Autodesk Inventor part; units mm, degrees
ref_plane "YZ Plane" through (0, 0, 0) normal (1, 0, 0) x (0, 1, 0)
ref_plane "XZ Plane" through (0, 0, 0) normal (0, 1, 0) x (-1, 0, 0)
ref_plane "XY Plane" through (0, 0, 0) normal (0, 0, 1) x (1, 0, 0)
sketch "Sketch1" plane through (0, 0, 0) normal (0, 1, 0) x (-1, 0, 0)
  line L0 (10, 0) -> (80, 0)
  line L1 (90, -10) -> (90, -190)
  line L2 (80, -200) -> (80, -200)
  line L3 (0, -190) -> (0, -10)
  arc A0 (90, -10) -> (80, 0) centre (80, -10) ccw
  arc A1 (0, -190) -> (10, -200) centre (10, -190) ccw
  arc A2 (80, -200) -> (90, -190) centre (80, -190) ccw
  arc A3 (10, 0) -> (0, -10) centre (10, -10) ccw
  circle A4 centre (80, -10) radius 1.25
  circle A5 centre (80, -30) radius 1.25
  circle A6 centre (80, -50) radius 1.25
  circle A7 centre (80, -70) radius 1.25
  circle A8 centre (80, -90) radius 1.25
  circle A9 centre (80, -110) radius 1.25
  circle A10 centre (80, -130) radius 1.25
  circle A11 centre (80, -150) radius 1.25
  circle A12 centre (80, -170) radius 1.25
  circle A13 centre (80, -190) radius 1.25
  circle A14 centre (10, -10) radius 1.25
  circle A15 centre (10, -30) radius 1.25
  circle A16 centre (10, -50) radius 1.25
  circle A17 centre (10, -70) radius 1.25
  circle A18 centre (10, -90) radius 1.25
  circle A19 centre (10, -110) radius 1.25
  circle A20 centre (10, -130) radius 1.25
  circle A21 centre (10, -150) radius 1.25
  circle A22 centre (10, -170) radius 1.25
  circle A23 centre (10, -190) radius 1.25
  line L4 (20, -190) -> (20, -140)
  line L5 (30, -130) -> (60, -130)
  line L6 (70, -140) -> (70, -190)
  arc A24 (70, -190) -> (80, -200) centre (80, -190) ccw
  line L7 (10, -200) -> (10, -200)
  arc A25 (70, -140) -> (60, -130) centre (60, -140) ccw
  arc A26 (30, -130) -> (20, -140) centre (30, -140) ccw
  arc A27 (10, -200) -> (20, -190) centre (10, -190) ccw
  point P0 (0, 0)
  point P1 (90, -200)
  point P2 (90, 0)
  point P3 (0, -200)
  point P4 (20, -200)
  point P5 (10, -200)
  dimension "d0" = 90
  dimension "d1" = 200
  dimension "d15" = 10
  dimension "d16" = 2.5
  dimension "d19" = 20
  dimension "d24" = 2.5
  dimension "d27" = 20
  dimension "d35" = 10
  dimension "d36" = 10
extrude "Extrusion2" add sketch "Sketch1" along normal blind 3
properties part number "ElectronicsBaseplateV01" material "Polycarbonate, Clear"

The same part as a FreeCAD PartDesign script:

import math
import FreeCAD as App
import Part
import Sketcher
from FreeCAD import Vector
Q = App.Units.Quantity

doc = App.newDocument("Part")
body = doc.addObject("PartDesign::Body", "Body")

# Sketch on XZ plane
sketch1 = doc.addObject("Sketcher::SketchObject", "Sketch")
body.addObject(sketch1)
sketch1.AttachmentSupport = (doc.XZ_Plane, [""])
sketch1.MapMode = "FlatFace"
sketch1.addGeometry([
    Part.LineSegment(Vector(-80, 0, 0), Vector(-10, 0, 0)),  # 0
    Part.ArcOfCircle(Part.Circle(Vector(-10, -10, 0), Vector(0, 0, 1), 10), math.radians(0), math.radians(90)),  # 1
    Part.LineSegment(Vector(0, -10, 0), Vector(0, -190, 0)),  # 2
    Part.ArcOfCircle(Part.Circle(Vector(-10, -190, 0), Vector(0, 0, 1), 10), math.radians(180), math.radians(360)),  # 3
    Part.LineSegment(Vector(-20, -190, 0), Vector(-20, -140, 0)),  # 4
    Part.ArcOfCircle(Part.Circle(Vector(-30, -140, 0), Vector(0, 0, 1), 10), math.radians(0), math.radians(90)),  # 5
    Part.LineSegment(Vector(-30, -130, 0), Vector(-60, -130, 0)),  # 6
    Part.ArcOfCircle(Part.Circle(Vector(-60, -140, 0), Vector(0, 0, 1), 10), math.radians(90), math.radians(180)),  # 7
    Part.LineSegment(Vector(-70, -140, 0), Vector(-70, -190, 0)),  # 8
    Part.ArcOfCircle(Part.Circle(Vector(-80, -190, 0), Vector(0, 0, 1), 10), math.radians(180), math.radians(360)),  # 9
    Part.LineSegment(Vector(-90, -190, 0), Vector(-90, -10, 0)),  # 10
    Part.ArcOfCircle(Part.Circle(Vector(-80, -10, 0), Vector(0, 0, 1), 10), math.radians(90), math.radians(180)),  # 11
    Part.Circle(Vector(-10, -190, 0), Vector(0, 0, 1), 1.2),  # 12
    Part.Circle(Vector(-10, -170, 0), Vector(0, 0, 1), 1.2),  # 13
    Part.Circle(Vector(-10, -150, 0), Vector(0, 0, 1), 1.2),  # 14
    Part.Circle(Vector(-10, -130, 0), Vector(0, 0, 1), 1.2),  # 15
    Part.Circle(Vector(-10, -110, 0), Vector(0, 0, 1), 1.2),  # 16
    Part.Circle(Vector(-80, -190, 0), Vector(0, 0, 1), 1.2),  # 17
    Part.Circle(Vector(-80, -170, 0), Vector(0, 0, 1), 1.2),  # 18
    Part.Circle(Vector(-80, -150, 0), Vector(0, 0, 1), 1.2),  # 19
    Part.Circle(Vector(-80, -130, 0), Vector(0, 0, 1), 1.2),  # 20
    Part.Circle(Vector(-80, -110, 0), Vector(0, 0, 1), 1.2),  # 21
    Part.Circle(Vector(-10, -90, 0), Vector(0, 0, 1), 1.2),  # 22
    Part.Circle(Vector(-10, -70, 0), Vector(0, 0, 1), 1.2),  # 23
    Part.Circle(Vector(-10, -50, 0), Vector(0, 0, 1), 1.2),  # 24
    Part.Circle(Vector(-10, -30, 0), Vector(0, 0, 1), 1.2),  # 25
    Part.Circle(Vector(-10, -10, 0), Vector(0, 0, 1), 1.2),  # 26
    Part.Circle(Vector(-80, -90, 0), Vector(0, 0, 1), 1.2),  # 27
    Part.Circle(Vector(-80, -70, 0), Vector(0, 0, 1), 1.2),  # 28
    Part.Circle(Vector(-80, -50, 0), Vector(0, 0, 1), 1.2),  # 29
    Part.Circle(Vector(-80, -30, 0), Vector(0, 0, 1), 1.2),  # 30
    Part.Circle(Vector(-80, -10, 0), Vector(0, 0, 1), 1.2),  # 31
], False)
sketch1.addConstraint([
    Sketcher.Constraint("Tangent", 0, 2, 1, 2),
    Sketcher.Constraint("Tangent", 1, 1, 2, 1),
    Sketcher.Constraint("Tangent", 2, 2, 3, 2),
    Sketcher.Constraint("Tangent", 3, 1, 4, 1),
    Sketcher.Constraint("Tangent", 4, 2, 5, 1),
    Sketcher.Constraint("Tangent", 5, 2, 6, 1),
    Sketcher.Constraint("Tangent", 6, 2, 7, 1),
    Sketcher.Constraint("Tangent", 7, 2, 8, 1),
    Sketcher.Constraint("Tangent", 8, 2, 9, 2),
    Sketcher.Constraint("Tangent", 9, 1, 10, 1),
    Sketcher.Constraint("Tangent", 10, 2, 11, 2),
    Sketcher.Constraint("Tangent", 11, 1, 0, 1),
    Sketcher.Constraint("Horizontal", 0),
    Sketcher.Constraint("Vertical", 2),
    Sketcher.Constraint("Vertical", 4),
    Sketcher.Constraint("Horizontal", 6),
    Sketcher.Constraint("Vertical", 8),
    Sketcher.Constraint("Vertical", 10),
    Sketcher.Constraint("Coincident", 12, 3, 3, 3),
    Sketcher.Constraint("Coincident", 17, 3, 9, 3),
    Sketcher.Constraint("Coincident", 26, 3, 1, 3),
    Sketcher.Constraint("Coincident", 31, 3, 11, 3),
    Sketcher.Constraint("Equal", 1, 3),
    Sketcher.Constraint("Equal", 3, 5),
    Sketcher.Constraint("Equal", 5, 7),
    Sketcher.Constraint("Equal", 7, 9),
    Sketcher.Constraint("Equal", 9, 11),
    Sketcher.Constraint("Equal", 12, 13),
    Sketcher.Constraint("Equal", 13, 14),
    Sketcher.Constraint("Equal", 14, 15),
    Sketcher.Constraint("Equal", 15, 16),
    Sketcher.Constraint("Equal", 16, 17),
    Sketcher.Constraint("Equal", 17, 18),
    Sketcher.Constraint("Equal", 18, 19),
    Sketcher.Constraint("Equal", 19, 20),
    Sketcher.Constraint("Equal", 20, 21),
    Sketcher.Constraint("Equal", 21, 22),
    Sketcher.Constraint("Equal", 22, 23),
    Sketcher.Constraint("Equal", 23, 24),
    Sketcher.Constraint("Equal", 24, 25),
    Sketcher.Constraint("Equal", 25, 26),
    Sketcher.Constraint("Equal", 26, 27),
    Sketcher.Constraint("Equal", 27, 28),
    Sketcher.Constraint("Equal", 28, 29),
    Sketcher.Constraint("Equal", 29, 30),
    Sketcher.Constraint("Equal", 30, 31),
    Sketcher.Constraint("PointOnObject", 0, 2, -1),
    Sketcher.Constraint("PointOnObject", 1, 1, -2),
    Sketcher.Constraint("Horizontal", 3, 3, 9, 3),
    Sketcher.Constraint("Horizontal", 13, 3, 18, 3),
    Sketcher.Constraint("Horizontal", 14, 3, 19, 3),
    Sketcher.Constraint("Horizontal", 15, 3, 20, 3),
    Sketcher.Constraint("Horizontal", 16, 3, 21, 3),
    Sketcher.Constraint("Horizontal", 22, 3, 27, 3),
    Sketcher.Constraint("Horizontal", 23, 3, 28, 3),
    Sketcher.Constraint("Horizontal", 24, 3, 29, 3),
    Sketcher.Constraint("Horizontal", 25, 3, 30, 3),
    Sketcher.Constraint("Horizontal", 20, 3, 5, 2),
    Sketcher.Constraint("Vertical", 12, 3, 13, 3),
    Sketcher.Constraint("Vertical", 13, 3, 14, 3),
    Sketcher.Constraint("Vertical", 14, 3, 15, 3),
    Sketcher.Constraint("Vertical", 15, 3, 16, 3),
    Sketcher.Constraint("Vertical", 17, 3, 18, 3),
    Sketcher.Constraint("Vertical", 18, 3, 19, 3),
    Sketcher.Constraint("Vertical", 19, 3, 20, 3),
    Sketcher.Constraint("Vertical", 20, 3, 21, 3),
    Sketcher.Constraint("Vertical", 16, 3, 22, 3),
    Sketcher.Constraint("Vertical", 22, 3, 23, 3),
    Sketcher.Constraint("Vertical", 23, 3, 24, 3),
    Sketcher.Constraint("Vertical", 24, 3, 25, 3),
    Sketcher.Constraint("Vertical", 21, 3, 27, 3),
    Sketcher.Constraint("Vertical", 27, 3, 28, 3),
    Sketcher.Constraint("Vertical", 28, 3, 29, 3),
    Sketcher.Constraint("Vertical", 29, 3, 30, 3),
    Sketcher.Constraint("Radius", 1, Q("10 mm")),
    Sketcher.Constraint("Diameter", 12, Q("2.5 mm")),
    Sketcher.Constraint("DistanceY", 22, 3, -1, 1, Q("90 mm")),
    Sketcher.Constraint("DistanceX", 9, 1, -1, 1, Q("90 mm")),
    Sketcher.Constraint("DistanceY", 3, 3, 13, 3, Q("20 mm")),
    Sketcher.Constraint("DistanceY", 13, 3, 14, 3, Q("20 mm")),
    Sketcher.Constraint("DistanceY", 14, 3, 5, 3, Q("10 mm")),
    Sketcher.Constraint("DistanceY", 15, 3, 16, 3, Q("20 mm")),
    Sketcher.Constraint("DistanceY", 16, 3, 22, 3, Q("20 mm")),
    Sketcher.Constraint("DistanceY", 22, 3, 23, 3, Q("20 mm")),
    Sketcher.Constraint("DistanceY", 23, 3, 24, 3, Q("20 mm")),
    Sketcher.Constraint("DistanceY", 25, 3, 1, 3, Q("20 mm")),
])
pad1 = doc.addObject("PartDesign::Pad", "Pad")
body.addObject(pad1)
pad1.Profile = sketch1
pad1.Length = 3
pad1.Reversed = True

doc.recompute()
